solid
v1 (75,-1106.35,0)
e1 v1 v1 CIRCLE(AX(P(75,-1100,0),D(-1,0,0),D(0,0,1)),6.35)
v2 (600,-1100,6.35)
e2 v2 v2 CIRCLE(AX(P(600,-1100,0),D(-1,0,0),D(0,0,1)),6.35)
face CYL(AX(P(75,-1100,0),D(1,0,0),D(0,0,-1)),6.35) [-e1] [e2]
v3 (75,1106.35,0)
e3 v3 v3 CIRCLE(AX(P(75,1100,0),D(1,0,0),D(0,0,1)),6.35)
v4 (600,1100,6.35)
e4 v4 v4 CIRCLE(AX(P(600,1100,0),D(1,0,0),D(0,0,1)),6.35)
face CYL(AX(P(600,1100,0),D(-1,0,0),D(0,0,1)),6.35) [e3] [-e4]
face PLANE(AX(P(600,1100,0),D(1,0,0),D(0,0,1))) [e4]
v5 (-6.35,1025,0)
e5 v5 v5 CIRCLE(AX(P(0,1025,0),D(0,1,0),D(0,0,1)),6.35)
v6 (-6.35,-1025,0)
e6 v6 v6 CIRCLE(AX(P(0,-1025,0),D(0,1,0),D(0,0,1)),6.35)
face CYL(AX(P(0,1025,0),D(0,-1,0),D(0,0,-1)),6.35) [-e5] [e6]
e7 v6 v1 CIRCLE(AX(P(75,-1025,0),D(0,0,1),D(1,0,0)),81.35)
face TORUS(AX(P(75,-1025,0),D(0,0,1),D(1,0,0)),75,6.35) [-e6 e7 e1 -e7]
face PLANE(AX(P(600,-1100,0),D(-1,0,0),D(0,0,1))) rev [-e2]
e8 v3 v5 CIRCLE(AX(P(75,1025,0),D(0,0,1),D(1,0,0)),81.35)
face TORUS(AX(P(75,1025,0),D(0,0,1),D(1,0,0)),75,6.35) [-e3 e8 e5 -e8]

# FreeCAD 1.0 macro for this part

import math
import FreeCAD as App
import Part
import Sketcher

V = App.Vector

doc = App.newDocument("Part")
body = doc.addObject("PartDesign::Body", "Body")

sketch1 = body.newObject("Sketcher::SketchObject", "Sketch")
sketch1.AttachmentSupport = (doc.getObject("YZ_Plane"), [""])
sketch1.MapMode = "FlatFace"
sketch1.AttachmentOffset = App.Placement(V(0, 0, 600), App.Rotation())
sketch1.addGeometry(Part.Circle(V(1100, 0, 0), V(0, 0, 1), 6), False)
sketch1.addConstraint(Sketcher.Constraint("PointOnObject", 0, 3, -1))
sketch1.addConstraint(Sketcher.Constraint("Diameter", 0, 12.7))
sketch1.addConstraint(Sketcher.Constraint("DistanceX", -1, 1, 0, 3, 1100.0))

sketch2 = body.newObject("Sketcher::SketchObject", "Sketch001")
sketch2.AttachmentSupport = (doc.getObject("XY_Plane"), [""])
sketch2.MapMode = "FlatFace"
sketch2.addGeometry(Part.LineSegment(V(600, 1100, 0), V(75, 1100, 0)), False)
sketch2.addGeometry(Part.ArcOfCircle(Part.Circle(V(75, 1025, 0), V(0, 0, 1), 75), math.radians(90), math.radians(180)), False)
sketch2.addGeometry(Part.LineSegment(V(0, 1025, 0), V(0, -1025, 0)), False)
sketch2.addGeometry(Part.ArcOfCircle(Part.Circle(V(75, -1025, 0), V(0, 0, 1), 75), math.radians(180), math.radians(270)), False)
sketch2.addGeometry(Part.LineSegment(V(75, -1100, 0), V(600, -1100, 0)), False)
sketch2.addConstraint(Sketcher.Constraint("Tangent", 0, 2, 1, 1))
sketch2.addConstraint(Sketcher.Constraint("Tangent", 1, 2, 2, 1))
sketch2.addConstraint(Sketcher.Constraint("Tangent", 2, 2, 3, 1))
sketch2.addConstraint(Sketcher.Constraint("Tangent", 3, 2, 4, 1))
sketch2.addConstraint(Sketcher.Constraint("Horizontal", 0))
sketch2.addConstraint(Sketcher.Constraint("Vertical", 2))
sketch2.addConstraint(Sketcher.Constraint("Horizontal", 4))
sketch2.addConstraint(Sketcher.Constraint("Equal", 1, 3))
sketch2.addConstraint(Sketcher.Constraint("Symmetric", 1, 2, 2, 2, -1, 1))
sketch2.addConstraint(Sketcher.Constraint("Vertical", 0, 1, 4, 2))
sketch2.addConstraint(Sketcher.Constraint("Radius", 1, 75.0))
sketch2.addConstraint(Sketcher.Constraint("DistanceX", 0, 2, 0, 1, 525.0))
sketch2.addConstraint(Sketcher.Constraint("DistanceY", 2, 2, 2, 1, 2050.0))
doc.recompute()

additivepipe = body.newObject("PartDesign::AdditivePipe", "AdditivePipe")
additivepipe.Profile = sketch1
additivepipe.Spine = (sketch2, ["Edge1", "Edge2", "Edge3", "Edge4", "Edge5"])

doc.recompute()
